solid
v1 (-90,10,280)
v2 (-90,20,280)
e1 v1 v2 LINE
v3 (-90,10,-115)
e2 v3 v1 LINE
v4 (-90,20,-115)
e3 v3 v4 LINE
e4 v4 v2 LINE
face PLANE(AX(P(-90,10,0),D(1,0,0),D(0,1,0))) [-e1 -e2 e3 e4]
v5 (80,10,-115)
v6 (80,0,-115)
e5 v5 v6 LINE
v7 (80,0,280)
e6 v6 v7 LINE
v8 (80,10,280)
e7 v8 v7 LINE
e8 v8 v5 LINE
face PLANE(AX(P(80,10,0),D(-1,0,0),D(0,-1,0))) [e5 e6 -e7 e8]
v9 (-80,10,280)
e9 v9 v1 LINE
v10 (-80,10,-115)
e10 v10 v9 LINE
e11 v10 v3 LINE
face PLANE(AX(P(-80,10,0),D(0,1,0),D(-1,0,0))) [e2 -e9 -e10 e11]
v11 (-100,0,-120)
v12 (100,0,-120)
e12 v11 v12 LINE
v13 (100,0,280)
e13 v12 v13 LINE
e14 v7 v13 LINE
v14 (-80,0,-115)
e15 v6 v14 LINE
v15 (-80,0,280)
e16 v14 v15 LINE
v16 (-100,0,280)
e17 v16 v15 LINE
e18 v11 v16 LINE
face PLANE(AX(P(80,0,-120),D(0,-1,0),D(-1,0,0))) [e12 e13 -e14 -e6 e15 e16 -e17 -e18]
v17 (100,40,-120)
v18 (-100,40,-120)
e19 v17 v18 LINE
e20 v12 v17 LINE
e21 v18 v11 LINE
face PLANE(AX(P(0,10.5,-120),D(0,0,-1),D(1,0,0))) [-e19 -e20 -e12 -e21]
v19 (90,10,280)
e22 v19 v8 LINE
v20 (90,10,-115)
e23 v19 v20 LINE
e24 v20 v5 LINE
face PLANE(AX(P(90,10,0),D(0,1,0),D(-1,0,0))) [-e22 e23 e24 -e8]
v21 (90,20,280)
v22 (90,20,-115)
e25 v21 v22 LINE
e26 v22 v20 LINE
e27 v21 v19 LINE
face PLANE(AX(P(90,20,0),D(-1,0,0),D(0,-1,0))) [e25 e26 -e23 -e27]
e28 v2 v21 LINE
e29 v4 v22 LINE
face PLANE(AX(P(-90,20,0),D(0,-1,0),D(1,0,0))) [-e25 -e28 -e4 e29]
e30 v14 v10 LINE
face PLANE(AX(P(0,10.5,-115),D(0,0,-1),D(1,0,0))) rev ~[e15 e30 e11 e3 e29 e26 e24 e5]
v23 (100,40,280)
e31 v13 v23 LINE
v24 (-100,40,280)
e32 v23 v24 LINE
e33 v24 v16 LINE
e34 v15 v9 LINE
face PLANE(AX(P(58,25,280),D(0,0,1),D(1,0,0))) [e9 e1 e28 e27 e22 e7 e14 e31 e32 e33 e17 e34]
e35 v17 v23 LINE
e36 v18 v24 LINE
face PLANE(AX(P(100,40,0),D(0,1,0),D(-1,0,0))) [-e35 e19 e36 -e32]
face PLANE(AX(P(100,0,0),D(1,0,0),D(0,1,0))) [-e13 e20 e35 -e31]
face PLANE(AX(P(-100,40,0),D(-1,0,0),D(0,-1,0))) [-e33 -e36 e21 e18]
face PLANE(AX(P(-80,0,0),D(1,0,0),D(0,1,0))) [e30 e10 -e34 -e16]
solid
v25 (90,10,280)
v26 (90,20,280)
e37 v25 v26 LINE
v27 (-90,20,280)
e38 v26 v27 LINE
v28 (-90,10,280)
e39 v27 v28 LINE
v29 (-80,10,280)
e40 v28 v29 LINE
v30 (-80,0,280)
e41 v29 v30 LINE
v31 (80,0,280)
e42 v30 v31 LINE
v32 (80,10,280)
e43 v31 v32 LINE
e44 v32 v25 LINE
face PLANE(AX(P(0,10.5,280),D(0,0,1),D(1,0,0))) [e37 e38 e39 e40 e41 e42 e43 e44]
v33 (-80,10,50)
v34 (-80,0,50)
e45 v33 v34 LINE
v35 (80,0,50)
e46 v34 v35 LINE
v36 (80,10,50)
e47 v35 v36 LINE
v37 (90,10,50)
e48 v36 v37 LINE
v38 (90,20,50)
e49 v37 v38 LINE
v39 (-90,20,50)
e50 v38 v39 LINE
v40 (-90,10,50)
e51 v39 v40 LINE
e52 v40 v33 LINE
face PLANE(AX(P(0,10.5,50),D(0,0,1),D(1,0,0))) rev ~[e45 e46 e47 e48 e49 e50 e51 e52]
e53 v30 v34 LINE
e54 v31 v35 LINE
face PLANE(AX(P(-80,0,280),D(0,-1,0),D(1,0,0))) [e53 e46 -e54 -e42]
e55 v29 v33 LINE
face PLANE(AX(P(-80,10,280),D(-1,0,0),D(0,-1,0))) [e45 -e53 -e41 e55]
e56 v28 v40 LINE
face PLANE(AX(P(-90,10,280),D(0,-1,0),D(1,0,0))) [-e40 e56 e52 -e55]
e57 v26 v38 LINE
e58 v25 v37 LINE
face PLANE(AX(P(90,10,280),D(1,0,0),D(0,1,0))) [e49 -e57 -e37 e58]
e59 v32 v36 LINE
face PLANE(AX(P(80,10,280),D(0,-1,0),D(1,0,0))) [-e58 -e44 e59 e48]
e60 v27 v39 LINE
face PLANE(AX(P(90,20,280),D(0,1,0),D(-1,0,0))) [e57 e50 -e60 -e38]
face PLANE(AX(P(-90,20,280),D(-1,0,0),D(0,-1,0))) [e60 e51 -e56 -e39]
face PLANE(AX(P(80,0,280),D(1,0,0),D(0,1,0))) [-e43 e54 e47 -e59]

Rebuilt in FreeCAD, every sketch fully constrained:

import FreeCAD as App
import Part
import Sketcher

V = App.Vector

doc = App.newDocument("Part")
body = doc.addObject("PartDesign::Body", "Body")

# Sketch on XY plane
sketch1 = body.newObject("Sketcher::SketchObject", "Sketch")
sketch1.AttachmentSupport = (doc.getObject("XY_Plane"), [""])
sketch1.MapMode = "FlatFace"
sketch1.addGeometry([
    Part.LineSegment(V(80, 10, 0), V(80, 0, 0)),  # 0
    Part.LineSegment(V(80, 0, 0), V(100, 0, 0)),  # 1
    Part.LineSegment(V(100, 0, 0), V(100, 40, 0)),  # 2
    Part.LineSegment(V(100, 40, 0), V(-100, 40, 0)),  # 3
    Part.LineSegment(V(-100, 40, 0), V(-100, 0, 0)),  # 4
    Part.LineSegment(V(-100, 0, 0), V(-80, 0, 0)),  # 5
    Part.LineSegment(V(-80, 0, 0), V(-80, 10, 0)),  # 6
    Part.LineSegment(V(-80, 10, 0), V(-90, 10, 0)),  # 7
    Part.LineSegment(V(-90, 10, 0), V(-90, 20, 0)),  # 8
    Part.LineSegment(V(-90, 20, 0), V(90, 20, 0)),  # 9
    Part.LineSegment(V(90, 20, 0), V(90, 10, 0)),  # 10
    Part.LineSegment(V(90, 10, 0), V(80, 10, 0)),  # 11
], False)
sketch1.addConstraint([
    Sketcher.Constraint("Coincident", 0, 2, 1, 1),
    Sketcher.Constraint("Coincident", 1, 2, 2, 1),
    Sketcher.Constraint("Coincident", 2, 2, 3, 1),
    Sketcher.Constraint("Coincident", 3, 2, 4, 1),
    Sketcher.Constraint("Coincident", 4, 2, 5, 1),
    Sketcher.Constraint("Coincident", 5, 2, 6, 1),
    Sketcher.Constraint("Coincident", 6, 2, 7, 1),
    Sketcher.Constraint("Coincident", 7, 2, 8, 1),
    Sketcher.Constraint("Coincident", 8, 2, 9, 1),
    Sketcher.Constraint("Coincident", 9, 2, 10, 1),
    Sketcher.Constraint("Coincident", 10, 2, 11, 1),
    Sketcher.Constraint("Coincident", 11, 2, 0, 1),
    Sketcher.Constraint("Vertical", 0),
    Sketcher.Constraint("Horizontal", 1),
    Sketcher.Constraint("Vertical", 2),
    Sketcher.Constraint("Horizontal", 3),
    Sketcher.Constraint("Vertical", 4),
    Sketcher.Constraint("Horizontal", 5),
    Sketcher.Constraint("Vertical", 6),
    Sketcher.Constraint("Horizontal", 7),
    Sketcher.Constraint("Vertical", 8),
    Sketcher.Constraint("Horizontal", 9),
    Sketcher.Constraint("Vertical", 10),
    Sketcher.Constraint("Horizontal", 11),
    Sketcher.Constraint("Symmetric", 1, 2, 4, 2, -1, 1),
    Sketcher.Constraint("Symmetric", 0, 2, 5, 2, -2),
    Sketcher.Constraint("Symmetric", 7, 2, 10, 2, -2),
    Sketcher.Constraint("Equal", 11, 0),
    Sketcher.Constraint("Equal", 6, 8),
    Sketcher.Constraint("DistanceX", 1, 1, 1, 2, 20.0),
    Sketcher.Constraint("DistanceX", 3, 2, 3, 1, 200.0),
    Sketcher.Constraint("DistanceX", 7, 2, 7, 1, 10.0),
    Sketcher.Constraint("DistanceY", 2, 1, 2, 2, 40.0),
])
pad1 = body.newObject("PartDesign::Pad", "Pad")
pad1.Profile = sketch1
pad1.Type = "TwoLengths"
pad1.Length = 280
pad1.Length2 = 120

# Sketch on XY plane
sketch2 = body.newObject("Sketcher::SketchObject", "Sketch001")
sketch2.AttachmentSupport = (doc.getObject("XY_Plane"), [""])
sketch2.MapMode = "FlatFace"
sketch2.AttachmentOffset = App.Placement(V(0, 0, -120), App.Rotation())
sketch2.addGeometry([
    Part.LineSegment(V(80, 0, 0), V(-80, 0, 0)),  # 0
    Part.LineSegment(V(-80, 0, 0), V(-80, 10, 0)),  # 1
    Part.LineSegment(V(-80, 10, 0), V(-90, 10, 0)),  # 2
    Part.LineSegment(V(-90, 10, 0), V(-90, 20, 0)),  # 3
    Part.LineSegment(V(-90, 20, 0), V(90, 20, 0)),  # 4
    Part.LineSegment(V(90, 20, 0), V(90, 10, 0)),  # 5
    Part.LineSegment(V(90, 10, 0), V(80, 10, 0)),  # 6
    Part.LineSegment(V(80, 10, 0), V(80, 0, 0)),  # 7
], False)
sketch2.addConstraint([
    Sketcher.Constraint("Coincident", 0, 2, 1, 1),
    Sketcher.Constraint("Coincident", 1, 2, 2, 1),
    Sketcher.Constraint("Coincident", 2, 2, 3, 1),
    Sketcher.Constraint("Coincident", 3, 2, 4, 1),
    Sketcher.Constraint("Coincident", 4, 2, 5, 1),
    Sketcher.Constraint("Coincident", 5, 2, 6, 1),
    Sketcher.Constraint("Coincident", 6, 2, 7, 1),
    Sketcher.Constraint("Coincident", 7, 2, 0, 1),
    Sketcher.Constraint("Horizontal", 0),
    Sketcher.Constraint("Vertical", 1),
    Sketcher.Constraint("Horizontal", 2),
    Sketcher.Constraint("Vertical", 3),
    Sketcher.Constraint("Horizontal", 4),
    Sketcher.Constraint("Vertical", 5),
    Sketcher.Constraint("Horizontal", 6),
    Sketcher.Constraint("Vertical", 7),
    Sketcher.Constraint("Symmetric", 0, 2, 7, 2, -1, 1),
    Sketcher.Constraint("Symmetric", 2, 2, 5, 2, -2),
    Sketcher.Constraint("Equal", 6, 1),
    Sketcher.Constraint("Equal", 1, 3),
    Sketcher.Constraint("DistanceX", 0, 2, 0, 1, 160.0),
    Sketcher.Constraint("DistanceX", 2, 2, 2, 1, 10.0),
])
pad2 = body.newObject("PartDesign::Pad", "Pad001")
pad2.Profile = sketch2
pad2.Length = 5
body2 = doc.addObject("PartDesign::Body", "Body001")

# Sketch on XY plane
sketch3 = body2.newObject("Sketcher::SketchObject", "Sketch002")
sketch3.AttachmentSupport = (doc.getObject("XY_Plane001"), [""])
sketch3.MapMode = "FlatFace"
sketch3.AttachmentOffset = App.Placement(V(0, 0, 280), App.Rotation())
sketch3.addGeometry([
    Part.LineSegment(V(-80, 10, 0), V(-80, 0, 0)),  # 0
    Part.LineSegment(V(-80, 0, 0), V(80, 0, 0)),  # 1
    Part.LineSegment(V(80, 0, 0), V(80, 10, 0)),  # 2
    Part.LineSegment(V(80, 10, 0), V(90, 10, 0)),  # 3
    Part.LineSegment(V(90, 10, 0), V(90, 20, 0)),  # 4
    Part.LineSegment(V(90, 20, 0), V(-90, 20, 0)),  # 5
    Part.LineSegment(V(-90, 20, 0), V(-90, 10, 0)),  # 6
    Part.LineSegment(V(-90, 10, 0), V(-80, 10, 0)),  # 7
], False)
sketch3.addConstraint([
    Sketcher.Constraint("Coincident", 0, 2, 1, 1),
    Sketcher.Constraint("Coincident", 1, 2, 2, 1),
    Sketcher.Constraint("Coincident", 2, 2, 3, 1),
    Sketcher.Constraint("Coincident", 3, 2, 4, 1),
    Sketcher.Constraint("Coincident", 4, 2, 5, 1),
    Sketcher.Constraint("Coincident", 5, 2, 6, 1),
    Sketcher.Constraint("Coincident", 6, 2, 7, 1),
    Sketcher.Constraint("Coincident", 7, 2, 0, 1),
    Sketcher.Constraint("Vertical", 0),
    Sketcher.Constraint("Horizontal", 1),
    Sketcher.Constraint("Vertical", 2),
    Sketcher.Constraint("Horizontal", 3),
    Sketcher.Constraint("Vertical", 4),
    Sketcher.Constraint("Horizontal", 5),
    Sketcher.Constraint("Vertical", 6),
    Sketcher.Constraint("Horizontal", 7),
    Sketcher.Constraint("Symmetric", 0, 2, 1, 2, -1, 1),
    Sketcher.Constraint("Symmetric", 3, 2, 6, 2, -2),
    Sketcher.Constraint("Equal", 7, 0),
    Sketcher.Constraint("Equal", 2, 4),
    Sketcher.Constraint("DistanceX", 1, 1, 1, 2, 160.0),
    Sketcher.Constraint("DistanceX", 3, 1, 3, 2, 10.0),
])
pad3 = body2.newObject("PartDesign::Pad", "Pad002")
pad3.Profile = sketch3
pad3.Length = 230
pad3.Reversed = True

doc.recompute()
